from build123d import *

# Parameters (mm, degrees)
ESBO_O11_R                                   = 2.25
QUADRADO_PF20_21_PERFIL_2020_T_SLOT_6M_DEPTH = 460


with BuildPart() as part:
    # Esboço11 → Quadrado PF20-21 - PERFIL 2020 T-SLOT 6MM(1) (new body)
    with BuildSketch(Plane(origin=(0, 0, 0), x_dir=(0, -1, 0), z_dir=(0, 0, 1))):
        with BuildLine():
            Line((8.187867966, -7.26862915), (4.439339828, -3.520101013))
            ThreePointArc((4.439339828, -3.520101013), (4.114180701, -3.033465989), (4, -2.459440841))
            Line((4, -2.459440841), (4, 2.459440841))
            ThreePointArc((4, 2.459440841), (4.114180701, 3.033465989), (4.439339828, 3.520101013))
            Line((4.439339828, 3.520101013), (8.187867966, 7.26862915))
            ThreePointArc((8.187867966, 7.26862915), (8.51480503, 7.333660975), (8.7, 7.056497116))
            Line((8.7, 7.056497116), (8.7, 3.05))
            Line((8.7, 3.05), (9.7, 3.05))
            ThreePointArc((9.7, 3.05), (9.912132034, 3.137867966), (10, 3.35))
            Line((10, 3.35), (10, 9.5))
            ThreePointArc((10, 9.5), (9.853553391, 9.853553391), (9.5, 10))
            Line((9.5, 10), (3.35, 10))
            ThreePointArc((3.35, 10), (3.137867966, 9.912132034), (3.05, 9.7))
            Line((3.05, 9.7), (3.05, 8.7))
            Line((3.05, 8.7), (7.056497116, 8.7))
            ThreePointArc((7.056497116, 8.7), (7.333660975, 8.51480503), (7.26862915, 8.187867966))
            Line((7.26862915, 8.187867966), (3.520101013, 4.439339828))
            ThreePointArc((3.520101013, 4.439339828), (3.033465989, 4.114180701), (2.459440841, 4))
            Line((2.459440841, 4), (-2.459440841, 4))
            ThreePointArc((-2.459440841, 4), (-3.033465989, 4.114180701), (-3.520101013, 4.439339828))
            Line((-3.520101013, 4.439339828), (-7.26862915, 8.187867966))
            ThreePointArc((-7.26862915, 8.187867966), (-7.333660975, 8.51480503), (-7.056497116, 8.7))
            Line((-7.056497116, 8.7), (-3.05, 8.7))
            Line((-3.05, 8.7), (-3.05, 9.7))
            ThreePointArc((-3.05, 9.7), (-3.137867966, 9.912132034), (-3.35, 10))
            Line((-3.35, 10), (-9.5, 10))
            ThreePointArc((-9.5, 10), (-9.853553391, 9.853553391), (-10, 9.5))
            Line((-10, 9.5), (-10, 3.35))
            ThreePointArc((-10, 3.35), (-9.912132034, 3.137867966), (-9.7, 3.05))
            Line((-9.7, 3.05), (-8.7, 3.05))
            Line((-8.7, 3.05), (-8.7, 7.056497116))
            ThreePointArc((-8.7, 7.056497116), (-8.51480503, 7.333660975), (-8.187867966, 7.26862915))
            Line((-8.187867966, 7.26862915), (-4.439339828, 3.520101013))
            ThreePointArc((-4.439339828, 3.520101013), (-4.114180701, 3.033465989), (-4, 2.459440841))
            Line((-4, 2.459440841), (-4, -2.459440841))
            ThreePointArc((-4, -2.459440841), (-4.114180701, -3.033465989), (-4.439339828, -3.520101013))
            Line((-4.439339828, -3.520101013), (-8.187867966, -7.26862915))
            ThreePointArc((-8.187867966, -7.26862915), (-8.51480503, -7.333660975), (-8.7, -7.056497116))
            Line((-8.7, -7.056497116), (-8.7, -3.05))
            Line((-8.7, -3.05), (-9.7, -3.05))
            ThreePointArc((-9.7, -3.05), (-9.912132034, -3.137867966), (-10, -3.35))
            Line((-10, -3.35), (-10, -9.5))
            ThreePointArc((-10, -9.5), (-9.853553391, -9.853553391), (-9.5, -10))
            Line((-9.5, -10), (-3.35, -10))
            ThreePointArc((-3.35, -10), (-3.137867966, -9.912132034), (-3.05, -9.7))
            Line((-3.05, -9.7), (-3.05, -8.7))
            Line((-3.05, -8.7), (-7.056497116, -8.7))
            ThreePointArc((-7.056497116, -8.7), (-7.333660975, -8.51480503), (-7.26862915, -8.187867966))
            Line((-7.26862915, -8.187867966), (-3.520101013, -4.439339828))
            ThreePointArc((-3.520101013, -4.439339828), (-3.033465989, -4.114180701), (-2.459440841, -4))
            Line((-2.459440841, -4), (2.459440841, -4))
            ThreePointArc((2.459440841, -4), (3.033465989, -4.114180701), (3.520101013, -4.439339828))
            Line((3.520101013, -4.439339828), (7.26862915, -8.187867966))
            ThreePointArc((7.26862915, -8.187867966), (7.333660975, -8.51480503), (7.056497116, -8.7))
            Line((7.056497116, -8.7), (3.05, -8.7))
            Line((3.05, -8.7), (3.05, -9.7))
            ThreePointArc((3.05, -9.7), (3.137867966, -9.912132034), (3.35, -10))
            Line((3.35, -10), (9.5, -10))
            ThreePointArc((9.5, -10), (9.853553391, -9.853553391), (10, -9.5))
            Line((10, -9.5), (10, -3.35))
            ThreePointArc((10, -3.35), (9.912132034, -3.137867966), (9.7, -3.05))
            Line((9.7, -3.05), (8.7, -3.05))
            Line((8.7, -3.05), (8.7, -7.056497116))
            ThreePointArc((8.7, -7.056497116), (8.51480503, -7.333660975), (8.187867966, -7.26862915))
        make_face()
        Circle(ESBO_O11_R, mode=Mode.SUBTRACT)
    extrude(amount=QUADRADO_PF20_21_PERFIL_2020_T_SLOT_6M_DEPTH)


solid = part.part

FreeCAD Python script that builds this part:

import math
import FreeCAD as App
import Part
import Sketcher
from FreeCAD import Vector
Q = App.Units.Quantity

doc = App.newDocument("Part")
body = doc.addObject("PartDesign::Body", "Body")

# Sketch on XY plane
sketch1 = body.newObject("Sketcher::SketchObject", "Sketch")
sketch1.AttachmentSupport = (doc.getObject("XY_Plane"), [""])
sketch1.MapMode = "FlatFace"
sketch1.addGeometry(Part.LineSegment(Vector(-7.27, -8.19, 0), Vector(-3.52, -4.44, 0)), False)
sketch1.addGeometry(Part.ArcOfCircle(Part.Circle(Vector(-2.46, -5.5, 0), Vector(0, 0, 1), 1.5), math.radians(90), math.radians(135)), False)
sketch1.addGeometry(Part.LineSegment(Vector(-2.46, -4, 0), Vector(2.46, -4, 0)), False)
sketch1.addGeometry(Part.ArcOfCircle(Part.Circle(Vector(2.46, -5.5, 0), Vector(0, 0, 1), 1.5), math.radians(45), math.radians(90)), False)
sketch1.addGeometry(Part.LineSegment(Vector(3.52, -4.44, 0), Vector(7.27, -8.19, 0)), False)
sketch1.addGeometry(Part.ArcOfCircle(Part.Circle(Vector(7.06, -8.4, 0), Vector(0, 0, 1), 0.3), math.radians(-90), math.radians(45)), False)
sketch1.addGeometry(Part.LineSegment(Vector(7.06, -8.7, 0), Vector(3.05, -8.7, 0)), False)
sketch1.addGeometry(Part.LineSegment(Vector(3.05, -8.7, 0), Vector(3.05, -9.7, 0)), False)
sketch1.addGeometry(Part.ArcOfCircle(Part.Circle(Vector(3.35, -9.7, 0), Vector(0, 0, 1), 0.3), math.radians(-180), math.radians(-90)), False)
sketch1.addGeometry(Part.LineSegment(Vector(3.35, -10, 0), Vector(9.5, -10, 0)), False)
sketch1.addGeometry(Part.ArcOfCircle(Part.Circle(Vector(9.5, -9.5, 0), Vector(0, 0, 1), 0.5), math.radians(-90), math.radians(0)), False)
sketch1.addGeometry(Part.LineSegment(Vector(10, -9.5, 0), Vector(10, -3.35, 0)), False)
sketch1.addGeometry(Part.ArcOfCircle(Part.Circle(Vector(9.7, -3.35, 0), Vector(0, 0, 1), 0.3), math.radians(0), math.radians(90)), False)
sketch1.addGeometry(Part.LineSegment(Vector(9.7, -3.05, 0), Vector(8.7, -3.05, 0)), False)
sketch1.addGeometry(Part.LineSegment(Vector(8.7, -3.05, 0), Vector(8.7, -7.06, 0)), False)
sketch1.addGeometry(Part.ArcOfCircle(Part.Circle(Vector(8.4, -7.06, 0), Vector(0, 0, 1), 0.3), math.radians(-135), math.radians(0)), False)
sketch1.addGeometry(Part.LineSegment(Vector(8.19, -7.27, 0), Vector(4.44, -3.52, 0)), False)
sketch1.addGeometry(Part.ArcOfCircle(Part.Circle(Vector(5.5, -2.46, 0), Vector(0, 0, 1), 1.5), math.radians(180), math.radians(225)), False)
sketch1.addGeometry(Part.LineSegment(Vector(4, -2.46, 0), Vector(4, 2.46, 0)), False)
sketch1.addGeometry(Part.ArcOfCircle(Part.Circle(Vector(5.5, 2.46, 0), Vector(0, 0, 1), 1.5), math.radians(135), math.radians(180)), False)
sketch1.addGeometry(Part.LineSegment(Vector(4.44, 3.52, 0), Vector(8.19, 7.27, 0)), False)
sketch1.addGeometry(Part.ArcOfCircle(Part.Circle(Vector(8.4, 7.06, 0), Vector(0, 0, 1), 0.3), math.radians(0), math.radians(135)), False)
sketch1.addGeometry(Part.LineSegment(Vector(8.7, 7.06, 0), Vector(8.7, 3.05, 0)), False)
sketch1.addGeometry(Part.LineSegment(Vector(8.7, 3.05, 0), Vector(9.7, 3.05, 0)), False)
sketch1.addGeometry(Part.ArcOfCircle(Part.Circle(Vector(9.7, 3.35, 0), Vector(0, 0, 1), 0.3), math.radians(-90), math.radians(0)), False)
sketch1.addGeometry(Part.LineSegment(Vector(10, 3.35, 0), Vector(10, 9.5, 0)), False)
sketch1.addGeometry(Part.ArcOfCircle(Part.Circle(Vector(9.5, 9.5, 0), Vector(0, 0, 1), 0.5), math.radians(0), math.radians(90)), False)
sketch1.addGeometry(Part.LineSegment(Vector(9.5, 10, 0), Vector(3.35, 10, 0)), False)
sketch1.addGeometry(Part.ArcOfCircle(Part.Circle(Vector(3.35, 9.7, 0), Vector(0, 0, 1), 0.3), math.radians(90), math.radians(180)), False)
sketch1.addGeometry(Part.LineSegment(Vector(3.05, 9.7, 0), Vector(3.05, 8.7, 0)), False)
sketch1.addGeometry(Part.LineSegment(Vector(3.05, 8.7, 0), Vector(7.06, 8.7, 0)), False)
sketch1.addGeometry(Part.ArcOfCircle(Part.Circle(Vector(7.06, 8.4, 0), Vector(0, 0, 1), 0.3), math.radians(-45), math.radians(90)), False)
sketch1.addGeometry(Part.LineSegment(Vector(7.27, 8.19, 0), Vector(3.52, 4.44, 0)), False)
sketch1.addGeometry(Part.ArcOfCircle(Part.Circle(Vector(2.46, 5.5, 0), Vector(0, 0, 1), 1.5), math.radians(-90), math.radians(-45)), False)
sketch1.addGeometry(Part.LineSegment(Vector(2.46, 4, 0), Vector(-2.46, 4, 0)), False)
sketch1.addGeometry(Part.ArcOfCircle(Part.Circle(Vector(-2.46, 5.5, 0), Vector(0, 0, 1), 1.5), math.radians(-135), math.radians(-90)), False)
sketch1.addGeometry(Part.LineSegment(Vector(-3.52, 4.44, 0), Vector(-7.27, 8.19, 0)), False)
sketch1.addGeometry(Part.ArcOfCircle(Part.Circle(Vector(-7.06, 8.4, 0), Vector(0, 0, 1), 0.3), math.radians(90), math.radians(225)), False)
sketch1.addGeometry(Part.LineSegment(Vector(-7.06, 8.7, 0), Vector(-3.05, 8.7, 0)), False)
sketch1.addGeometry(Part.LineSegment(Vector(-3.05, 8.7, 0), Vector(-3.05, 9.7, 0)), False)
sketch1.addGeometry(Part.ArcOfCircle(Part.Circle(Vector(-3.35, 9.7, 0), Vector(0, 0, 1), 0.3), math.radians(0), math.radians(90)), False)
sketch1.addGeometry(Part.LineSegment(Vector(-3.35, 10, 0), Vector(-9.5, 10, 0)), False)
sketch1.addGeometry(Part.ArcOfCircle(Part.Circle(Vector(-9.5, 9.5, 0), Vector(0, 0, 1), 0.5), math.radians(90), math.radians(180)), False)
sketch1.addGeometry(Part.LineSegment(Vector(-10, 9.5, 0), Vector(-10, 3.35, 0)), False)
sketch1.addGeometry(Part.ArcOfCircle(Part.Circle(Vector(-9.7, 3.35, 0), Vector(0, 0, 1), 0.3), math.radians(-180), math.radians(-90)), False)
sketch1.addGeometry(Part.LineSegment(Vector(-9.7, 3.05, 0), Vector(-8.7, 3.05, 0)), False)
sketch1.addGeometry(Part.LineSegment(Vector(-8.7, 3.05, 0), Vector(-8.7, 7.06, 0)), False)
sketch1.addGeometry(Part.ArcOfCircle(Part.Circle(Vector(-8.4, 7.06, 0), Vector(0, 0, 1), 0.3), math.radians(45), math.radians(180)), False)
sketch1.addGeometry(Part.LineSegment(Vector(-8.19, 7.27, 0), Vector(-4.44, 3.52, 0)), False)
sketch1.addGeometry(Part.ArcOfCircle(Part.Circle(Vector(-5.5, 2.46, 0), Vector(0, 0, 1), 1.5), math.radians(0), math.radians(45)), False)
sketch1.addGeometry(Part.LineSegment(Vector(-4, 2.46, 0), Vector(-4, -2.46, 0)), False)
sketch1.addGeometry(Part.ArcOfCircle(Part.Circle(Vector(-5.5, -2.46, 0), Vector(0, 0, 1), 1.5), math.radians(-45), math.radians(0)), False)
sketch1.addGeometry(Part.LineSegment(Vector(-4.44, -3.52, 0), Vector(-8.19, -7.27, 0)), False)
sketch1.addGeometry(Part.ArcOfCircle(Part.Circle(Vector(-8.4, -7.06, 0), Vector(0, 0, 1), 0.3), math.radians(-180), math.radians(-45)), False)
sketch1.addGeometry(Part.LineSegment(Vector(-8.7, -7.06, 0), Vector(-8.7, -3.05, 0)), False)
sketch1.addGeometry(Part.LineSegment(Vector(-8.7, -3.05, 0), Vector(-9.7, -3.05, 0)), False)
sketch1.addGeometry(Part.ArcOfCircle(Part.Circle(Vector(-9.7, -3.35, 0), Vector(0, 0, 1), 0.3), math.radians(90), math.radians(180)), False)
sketch1.addGeometry(Part.LineSegment(Vector(-10, -3.35, 0), Vector(-10, -9.5, 0)), False)
sketch1.addGeometry(Part.ArcOfCircle(Part.Circle(Vector(-9.5, -9.5, 0), Vector(0, 0, 1), 0.5), math.radians(180), math.radians(270)), False)
sketch1.addGeometry(Part.LineSegment(Vector(-9.5, -10, 0), Vector(-3.35, -10, 0)), False)
sketch1.addGeometry(Part.ArcOfCircle(Part.Circle(Vector(-3.35, -9.7, 0), Vector(0, 0, 1), 0.3), math.radians(-90), math.radians(0)), False)
sketch1.addGeometry(Part.LineSegment(Vector(-3.05, -9.7, 0), Vector(-3.05, -8.7, 0)), False)
sketch1.addGeometry(Part.LineSegment(Vector(-3.05, -8.7, 0), Vector(-7.06, -8.7, 0)), False)
sketch1.addGeometry(Part.ArcOfCircle(Part.Circle(Vector(-7.06, -8.4, 0), Vector(0, 0, 1), 0.3), math.radians(135), math.radians(270)), False)
sketch1.addGeometry(Part.Circle(Vector(0, 0, 0), Vector(0, 0, 1), 2.25), False)
sketch1.addConstraint(Sketcher.Constraint("Tangent", 0, 2, 1, 2))
sketch1.addConstraint(Sketcher.Constraint("Tangent", 1, 1, 2, 1))
sketch1.addConstraint(Sketcher.Constraint("Tangent", 2, 2, 3, 2))
sketch1.addConstraint(Sketcher.Constraint("Tangent", 3, 1, 4, 1))
sketch1.addConstraint(Sketcher.Constraint("Tangent", 4, 2, 5, 2))
sketch1.addConstraint(Sketcher.Constraint("Tangent", 5, 1, 6, 1))
sketch1.addConstraint(Sketcher.Constraint("Coincident", 6, 2, 7, 1))
sketch1.addConstraint(Sketcher.Constraint("Tangent", 7, 2, 8, 1))
sketch1.addConstraint(Sketcher.Constraint("Tangent", 8, 2, 9, 1))
sketch1.addConstraint(Sketcher.Constraint("Tangent", 9, 2, 10, 1))
sketch1.addConstraint(Sketcher.Constraint("Tangent", 10, 2, 11, 1))
sketch1.addConstraint(Sketcher.Constraint("Tangent", 11, 2, 12, 1))
sketch1.addConstraint(Sketcher.Constraint("Tangent", 12, 2, 13, 1))
sketch1.addConstraint(Sketcher.Constraint("Coincident", 13, 2, 14, 1))
sketch1.addConstraint(Sketcher.Constraint("Tangent", 14, 2, 15, 2))
sketch1.addConstraint(Sketcher.Constraint("Tangent", 15, 1, 16, 1))
sketch1.addConstraint(Sketcher.Constraint("Tangent", 16, 2, 17, 2))
sketch1.addConstraint(Sketcher.Constraint("Tangent", 17, 1, 18, 1))
sketch1.addConstraint(Sketcher.Constraint("Tangent", 18, 2, 19, 2))
sketch1.addConstraint(Sketcher.Constraint("Tangent", 19, 1, 20, 1))
sketch1.addConstraint(Sketcher.Constraint("Tangent", 20, 2, 21, 2))
sketch1.addConstraint(Sketcher.Constraint("Tangent", 21, 1, 22, 1))
sketch1.addConstraint(Sketcher.Constraint("Coincident", 22, 2, 23, 1))
sketch1.addConstraint(Sketcher.Constraint("Tangent", 23, 2, 24, 1))
sketch1.addConstraint(Sketcher.Constraint("Tangent", 24, 2, 25, 1))
sketch1.addConstraint(Sketcher.Constraint("Tangent", 25, 2, 26, 1))
sketch1.addConstraint(Sketcher.Constraint("Tangent", 26, 2, 27, 1))
sketch1.addConstraint(Sketcher.Constraint("Tangent", 27, 2, 28, 1))
sketch1.addConstraint(Sketcher.Constraint("Tangent", 28, 2, 29, 1))
sketch1.addConstraint(Sketcher.Constraint("Coincident", 29, 2, 30, 1))
sketch1.addConstraint(Sketcher.Constraint("Tangent", 30, 2, 31, 2))
sketch1.addConstraint(Sketcher.Constraint("Tangent", 31, 1, 32, 1))
sketch1.addConstraint(Sketcher.Constraint("Tangent", 32, 2, 33, 2))
sketch1.addConstraint(Sketcher.Constraint("Tangent", 33, 1, 34, 1))
sketch1.addConstraint(Sketcher.Constraint("Tangent", 34, 2, 35, 2))
sketch1.addConstraint(Sketcher.Constraint("Tangent", 35, 1, 36, 1))
sketch1.addConstraint(Sketcher.Constraint("Tangent", 36, 2, 37, 2))
sketch1.addConstraint(Sketcher.Constraint("Tangent", 37, 1, 38, 1))
sketch1.addConstraint(Sketcher.Constraint("Coincident", 38, 2, 39, 1))
sketch1.addConstraint(Sketcher.Constraint("Tangent", 39, 2, 40, 1))
sketch1.addConstraint(Sketcher.Constraint("Tangent", 40, 2, 41, 1))
sketch1.addConstraint(Sketcher.Constraint("Tangent", 41, 2, 42, 1))
sketch1.addConstraint(Sketcher.Constraint("Tangent", 42, 2, 43, 1))
sketch1.addConstraint(Sketcher.Constraint("Tangent", 43, 2, 44, 1))
sketch1.addConstraint(Sketcher.Constraint("Tangent", 44, 2, 45, 1))
sketch1.addConstraint(Sketcher.Constraint("Coincident", 45, 2, 46, 1))
sketch1.addConstraint(Sketcher.Constraint("Tangent", 46, 2, 47, 2))
sketch1.addConstraint(Sketcher.Constraint("Tangent", 47, 1, 48, 1))
sketch1.addConstraint(Sketcher.Constraint("Tangent", 48, 2, 49, 2))
sketch1.addConstraint(Sketcher.Constraint("Tangent", 49, 1, 50, 1))
sketch1.addConstraint(Sketcher.Constraint("Tangent", 50, 2, 51, 2))
sketch1.addConstraint(Sketcher.Constraint("Tangent", 51, 1, 52, 1))
sketch1.addConstraint(Sketcher.Constraint("Tangent", 52, 2, 53, 2))
sketch1.addConstraint(Sketcher.Constraint("Tangent", 53, 1, 54, 1))
sketch1.addConstraint(Sketcher.Constraint("Coincident", 54, 2, 55, 1))
sketch1.addConstraint(Sketcher.Constraint("Tangent", 55, 2, 56, 1))
sketch1.addConstraint(Sketcher.Constraint("Tangent", 56, 2, 57, 1))
sketch1.addConstraint(Sketcher.Constraint("Tangent", 57, 2, 58, 1))
sketch1.addConstraint(Sketcher.Constraint("Tangent", 58, 2, 59, 1))
sketch1.addConstraint(Sketcher.Constraint("Tangent", 59, 2, 60, 1))
sketch1.addConstraint(Sketcher.Constraint("Tangent", 60, 2, 61, 1))
sketch1.addConstraint(Sketcher.Constraint("Coincident", 61, 2, 62, 1))
sketch1.addConstraint(Sketcher.Constraint("Tangent", 62, 2, 63, 2))
sketch1.addConstraint(Sketcher.Constraint("Tangent", 63, 1, 0, 1))
sketch1.addConstraint(Sketcher.Constraint("Horizontal", 2))
sketch1.addConstraint(Sketcher.Constraint("Horizontal", 6))
sketch1.addConstraint(Sketcher.Constraint("Vertical", 7))
sketch1.addConstraint(Sketcher.Constraint("Horizontal", 9))
sketch1.addConstraint(Sketcher.Constraint("Vertical", 11))
sketch1.addConstraint(Sketcher.Constraint("Horizontal", 13))
sketch1.addConstraint(Sketcher.Constraint("Vertical", 14))
sketch1.addConstraint(Sketcher.Constraint("Vertical", 18))
sketch1.addConstraint(Sketcher.Constraint("Vertical", 22))
sketch1.addConstraint(Sketcher.Constraint("Horizontal", 23))
sketch1.addConstraint(Sketcher.Constraint("Vertical", 25))
sketch1.addConstraint(Sketcher.Constraint("Horizontal", 27))
sketch1.addConstraint(Sketcher.Constraint("Vertical", 29))
sketch1.addConstraint(Sketcher.Constraint("Horizontal", 30))
sketch1.addConstraint(Sketcher.Constraint("Horizontal", 34))
sketch1.addConstraint(Sketcher.Constraint("Horizontal", 38))
sketch1.addConstraint(Sketcher.Constraint("Vertical", 39))
sketch1.addConstraint(Sketcher.Constraint("Horizontal", 41))
sketch1.addConstraint(Sketcher.Constraint("Vertical", 43))
sketch1.addConstraint(Sketcher.Constraint("Horizontal", 45))
sketch1.addConstraint(Sketcher.Constraint("Vertical", 46))
sketch1.addConstraint(Sketcher.Constraint("Vertical", 50))
sketch1.addConstraint(Sketcher.Constraint("Vertical", 54))
sketch1.addConstraint(Sketcher.Constraint("Horizontal", 55))
sketch1.addConstraint(Sketcher.Constraint("Vertical", 57))
sketch1.addConstraint(Sketcher.Constraint("Horizontal", 59))
sketch1.addConstraint(Sketcher.Constraint("Vertical", 61))
sketch1.addConstraint(Sketcher.Constraint("Horizontal", 62))
sketch1.addConstraint(Sketcher.Constraint("Coincident", 64, 3, -1, 1))
sketch1.addConstraint(Sketcher.Constraint("Equal", 1, 3))
sketch1.addConstraint(Sketcher.Constraint("Equal", 5, 8))
sketch1.addConstraint(Sketcher.Constraint("Equal", 8, 12))
sketch1.addConstraint(Sketcher.Constraint("Equal", 12, 15))
sketch1.addConstraint(Sketcher.Constraint("Equal", 3, 17))
sketch1.addConstraint(Sketcher.Constraint("Equal", 17, 19))
sketch1.addConstraint(Sketcher.Constraint("Equal", 15, 21))
sketch1.addConstraint(Sketcher.Constraint("Equal", 21, 24))
sketch1.addConstraint(Sketcher.Constraint("Equal", 10, 26))
sketch1.addConstraint(Sketcher.Constraint("Equal", 24, 28))
sketch1.addConstraint(Sketcher.Constraint("Equal", 28, 31))
sketch1.addConstraint(Sketcher.Constraint("Equal", 19, 33))
sketch1.addConstraint(Sketcher.Constraint("Equal", 33, 35))
sketch1.addConstraint(Sketcher.Constraint("Equal", 31, 37))
sketch1.addConstraint(Sketcher.Constraint("Equal", 37, 40))
sketch1.addConstraint(Sketcher.Constraint("Equal", 26, 42))
sketch1.addConstraint(Sketcher.Constraint("Equal", 40, 44))
sketch1.addConstraint(Sketcher.Constraint("Equal", 44, 47))
sketch1.addConstraint(Sketcher.Constraint("Equal", 35, 49))
sketch1.addConstraint(Sketcher.Constraint("Equal", 49, 51))
sketch1.addConstraint(Sketcher.Constraint("Equal", 47, 53))
sketch1.addConstraint(Sketcher.Constraint("Equal", 53, 56))
sketch1.addConstraint(Sketcher.Constraint("Equal", 42, 58))
sketch1.addConstraint(Sketcher.Constraint("Equal", 56, 60))
sketch1.addConstraint(Sketcher.Constraint("Equal", 60, 63))
sketch1.addConstraint(Sketcher.Constraint("Symmetric", 1, 3, 33, 3, -1, 1))
sketch1.addConstraint(Sketcher.Constraint("Symmetric", 5, 3, 37, 3, -1, 1))
sketch1.addConstraint(Sketcher.Constraint("Symmetric", 8, 3, 40, 3, -1, 1))
sketch1.addConstraint(Sketcher.Constraint("Symmetric", 12, 3, 44, 3, -1, 1))
sketch1.addConstraint(Sketcher.Constraint("Symmetric", 15, 3, 47, 3, -1, 1))
sketch1.addConstraint(Sketcher.Constraint("Symmetric", 17, 3, 49, 3, -1, 1))
sketch1.addConstraint(Sketcher.Constraint("Symmetric", 21, 3, 53, 3, -1, 1))
sketch1.addConstraint(Sketcher.Constraint("Symmetric", 24, 3, 56, 3, -1, 1))
sketch1.addConstraint(Sketcher.Constraint("Symmetric", 28, 3, 60, 3, -1, 1))
sketch1.addConstraint(Sketcher.Constraint("Symmetric", 31, 3, 63, 3, -1, 1))
sketch1.addConstraint(Sketcher.Constraint("Symmetric", 31, 3, 37, 3, -2))
sketch1.addConstraint(Sketcher.Constraint("Symmetric", 28, 3, 40, 3, -2))
sketch1.addConstraint(Sketcher.Constraint("Symmetric", 24, 3, 44, 3, -2))
sketch1.addConstraint(Sketcher.Constraint("Symmetric", 21, 3, 47, 3, -2))
sketch1.addConstraint(Sketcher.Constraint("Perpendicular", 0, 4))
sketch1.addConstraint(Sketcher.Constraint("Parallel", 4, 16))
sketch1.addConstraint(Sketcher.Constraint("Perpendicular", 16, 20))
sketch1.addConstraint(Sketcher.Constraint("Perpendicular", 32, 36))
sketch1.addConstraint(Sketcher.Constraint("Perpendicular", 48, 52))
sketch1.addConstraint(Sketcher.Constraint("Horizontal", 19, 3, 49, 3))
sketch1.addConstraint(Sketcher.Constraint("Equal", 55, 7))
sketch1.addConstraint(Sketcher.Constraint("Equal", 59, 11))
sketch1.addConstraint(Sketcher.Constraint("Equal", 62, 14))
sketch1.addConstraint(Sketcher.Constraint("Equal", 34, 18))
sketch1.addConstraint(Sketcher.Constraint("Equal", 4, 16))
sketch1.addConstraint(Sketcher.Constraint("Diameter", 64, Q("4.5 mm")))
sketch1.addConstraint(Sketcher.Constraint("Radius", 1, Q("1.5 mm")))
sketch1.addConstraint(Sketcher.Constraint("Radius", 5, Q("0.3 mm")))
sketch1.addConstraint(Sketcher.Constraint("Radius", 10, Q("0.5 mm")))
sketch1.addConstraint(Sketcher.Constraint("DistanceX", 13, 2, 13, 1, Q("1 mm")))
sketch1.addConstraint(Sketcher.Constraint("DistanceY", 1, 1, -1, 1, Q("4 mm")))
sketch1.addConstraint(Sketcher.Constraint("DistanceY", 8, 2, -1, 1, Q("10 mm")))
sketch1.addConstraint(Sketcher.Constraint("DistanceX", 9, 1, 9, 2, Q("6.15 mm")))
sketch1.addConstraint(Sketcher.Constraint("DistanceX", 2, 1, 2, 2, Q("4.918882 mm")))
pad1 = body.newObject("PartDesign::Pad", "Pad")
pad1.Profile = sketch1
pad1.Length = 460

doc.recompute()
